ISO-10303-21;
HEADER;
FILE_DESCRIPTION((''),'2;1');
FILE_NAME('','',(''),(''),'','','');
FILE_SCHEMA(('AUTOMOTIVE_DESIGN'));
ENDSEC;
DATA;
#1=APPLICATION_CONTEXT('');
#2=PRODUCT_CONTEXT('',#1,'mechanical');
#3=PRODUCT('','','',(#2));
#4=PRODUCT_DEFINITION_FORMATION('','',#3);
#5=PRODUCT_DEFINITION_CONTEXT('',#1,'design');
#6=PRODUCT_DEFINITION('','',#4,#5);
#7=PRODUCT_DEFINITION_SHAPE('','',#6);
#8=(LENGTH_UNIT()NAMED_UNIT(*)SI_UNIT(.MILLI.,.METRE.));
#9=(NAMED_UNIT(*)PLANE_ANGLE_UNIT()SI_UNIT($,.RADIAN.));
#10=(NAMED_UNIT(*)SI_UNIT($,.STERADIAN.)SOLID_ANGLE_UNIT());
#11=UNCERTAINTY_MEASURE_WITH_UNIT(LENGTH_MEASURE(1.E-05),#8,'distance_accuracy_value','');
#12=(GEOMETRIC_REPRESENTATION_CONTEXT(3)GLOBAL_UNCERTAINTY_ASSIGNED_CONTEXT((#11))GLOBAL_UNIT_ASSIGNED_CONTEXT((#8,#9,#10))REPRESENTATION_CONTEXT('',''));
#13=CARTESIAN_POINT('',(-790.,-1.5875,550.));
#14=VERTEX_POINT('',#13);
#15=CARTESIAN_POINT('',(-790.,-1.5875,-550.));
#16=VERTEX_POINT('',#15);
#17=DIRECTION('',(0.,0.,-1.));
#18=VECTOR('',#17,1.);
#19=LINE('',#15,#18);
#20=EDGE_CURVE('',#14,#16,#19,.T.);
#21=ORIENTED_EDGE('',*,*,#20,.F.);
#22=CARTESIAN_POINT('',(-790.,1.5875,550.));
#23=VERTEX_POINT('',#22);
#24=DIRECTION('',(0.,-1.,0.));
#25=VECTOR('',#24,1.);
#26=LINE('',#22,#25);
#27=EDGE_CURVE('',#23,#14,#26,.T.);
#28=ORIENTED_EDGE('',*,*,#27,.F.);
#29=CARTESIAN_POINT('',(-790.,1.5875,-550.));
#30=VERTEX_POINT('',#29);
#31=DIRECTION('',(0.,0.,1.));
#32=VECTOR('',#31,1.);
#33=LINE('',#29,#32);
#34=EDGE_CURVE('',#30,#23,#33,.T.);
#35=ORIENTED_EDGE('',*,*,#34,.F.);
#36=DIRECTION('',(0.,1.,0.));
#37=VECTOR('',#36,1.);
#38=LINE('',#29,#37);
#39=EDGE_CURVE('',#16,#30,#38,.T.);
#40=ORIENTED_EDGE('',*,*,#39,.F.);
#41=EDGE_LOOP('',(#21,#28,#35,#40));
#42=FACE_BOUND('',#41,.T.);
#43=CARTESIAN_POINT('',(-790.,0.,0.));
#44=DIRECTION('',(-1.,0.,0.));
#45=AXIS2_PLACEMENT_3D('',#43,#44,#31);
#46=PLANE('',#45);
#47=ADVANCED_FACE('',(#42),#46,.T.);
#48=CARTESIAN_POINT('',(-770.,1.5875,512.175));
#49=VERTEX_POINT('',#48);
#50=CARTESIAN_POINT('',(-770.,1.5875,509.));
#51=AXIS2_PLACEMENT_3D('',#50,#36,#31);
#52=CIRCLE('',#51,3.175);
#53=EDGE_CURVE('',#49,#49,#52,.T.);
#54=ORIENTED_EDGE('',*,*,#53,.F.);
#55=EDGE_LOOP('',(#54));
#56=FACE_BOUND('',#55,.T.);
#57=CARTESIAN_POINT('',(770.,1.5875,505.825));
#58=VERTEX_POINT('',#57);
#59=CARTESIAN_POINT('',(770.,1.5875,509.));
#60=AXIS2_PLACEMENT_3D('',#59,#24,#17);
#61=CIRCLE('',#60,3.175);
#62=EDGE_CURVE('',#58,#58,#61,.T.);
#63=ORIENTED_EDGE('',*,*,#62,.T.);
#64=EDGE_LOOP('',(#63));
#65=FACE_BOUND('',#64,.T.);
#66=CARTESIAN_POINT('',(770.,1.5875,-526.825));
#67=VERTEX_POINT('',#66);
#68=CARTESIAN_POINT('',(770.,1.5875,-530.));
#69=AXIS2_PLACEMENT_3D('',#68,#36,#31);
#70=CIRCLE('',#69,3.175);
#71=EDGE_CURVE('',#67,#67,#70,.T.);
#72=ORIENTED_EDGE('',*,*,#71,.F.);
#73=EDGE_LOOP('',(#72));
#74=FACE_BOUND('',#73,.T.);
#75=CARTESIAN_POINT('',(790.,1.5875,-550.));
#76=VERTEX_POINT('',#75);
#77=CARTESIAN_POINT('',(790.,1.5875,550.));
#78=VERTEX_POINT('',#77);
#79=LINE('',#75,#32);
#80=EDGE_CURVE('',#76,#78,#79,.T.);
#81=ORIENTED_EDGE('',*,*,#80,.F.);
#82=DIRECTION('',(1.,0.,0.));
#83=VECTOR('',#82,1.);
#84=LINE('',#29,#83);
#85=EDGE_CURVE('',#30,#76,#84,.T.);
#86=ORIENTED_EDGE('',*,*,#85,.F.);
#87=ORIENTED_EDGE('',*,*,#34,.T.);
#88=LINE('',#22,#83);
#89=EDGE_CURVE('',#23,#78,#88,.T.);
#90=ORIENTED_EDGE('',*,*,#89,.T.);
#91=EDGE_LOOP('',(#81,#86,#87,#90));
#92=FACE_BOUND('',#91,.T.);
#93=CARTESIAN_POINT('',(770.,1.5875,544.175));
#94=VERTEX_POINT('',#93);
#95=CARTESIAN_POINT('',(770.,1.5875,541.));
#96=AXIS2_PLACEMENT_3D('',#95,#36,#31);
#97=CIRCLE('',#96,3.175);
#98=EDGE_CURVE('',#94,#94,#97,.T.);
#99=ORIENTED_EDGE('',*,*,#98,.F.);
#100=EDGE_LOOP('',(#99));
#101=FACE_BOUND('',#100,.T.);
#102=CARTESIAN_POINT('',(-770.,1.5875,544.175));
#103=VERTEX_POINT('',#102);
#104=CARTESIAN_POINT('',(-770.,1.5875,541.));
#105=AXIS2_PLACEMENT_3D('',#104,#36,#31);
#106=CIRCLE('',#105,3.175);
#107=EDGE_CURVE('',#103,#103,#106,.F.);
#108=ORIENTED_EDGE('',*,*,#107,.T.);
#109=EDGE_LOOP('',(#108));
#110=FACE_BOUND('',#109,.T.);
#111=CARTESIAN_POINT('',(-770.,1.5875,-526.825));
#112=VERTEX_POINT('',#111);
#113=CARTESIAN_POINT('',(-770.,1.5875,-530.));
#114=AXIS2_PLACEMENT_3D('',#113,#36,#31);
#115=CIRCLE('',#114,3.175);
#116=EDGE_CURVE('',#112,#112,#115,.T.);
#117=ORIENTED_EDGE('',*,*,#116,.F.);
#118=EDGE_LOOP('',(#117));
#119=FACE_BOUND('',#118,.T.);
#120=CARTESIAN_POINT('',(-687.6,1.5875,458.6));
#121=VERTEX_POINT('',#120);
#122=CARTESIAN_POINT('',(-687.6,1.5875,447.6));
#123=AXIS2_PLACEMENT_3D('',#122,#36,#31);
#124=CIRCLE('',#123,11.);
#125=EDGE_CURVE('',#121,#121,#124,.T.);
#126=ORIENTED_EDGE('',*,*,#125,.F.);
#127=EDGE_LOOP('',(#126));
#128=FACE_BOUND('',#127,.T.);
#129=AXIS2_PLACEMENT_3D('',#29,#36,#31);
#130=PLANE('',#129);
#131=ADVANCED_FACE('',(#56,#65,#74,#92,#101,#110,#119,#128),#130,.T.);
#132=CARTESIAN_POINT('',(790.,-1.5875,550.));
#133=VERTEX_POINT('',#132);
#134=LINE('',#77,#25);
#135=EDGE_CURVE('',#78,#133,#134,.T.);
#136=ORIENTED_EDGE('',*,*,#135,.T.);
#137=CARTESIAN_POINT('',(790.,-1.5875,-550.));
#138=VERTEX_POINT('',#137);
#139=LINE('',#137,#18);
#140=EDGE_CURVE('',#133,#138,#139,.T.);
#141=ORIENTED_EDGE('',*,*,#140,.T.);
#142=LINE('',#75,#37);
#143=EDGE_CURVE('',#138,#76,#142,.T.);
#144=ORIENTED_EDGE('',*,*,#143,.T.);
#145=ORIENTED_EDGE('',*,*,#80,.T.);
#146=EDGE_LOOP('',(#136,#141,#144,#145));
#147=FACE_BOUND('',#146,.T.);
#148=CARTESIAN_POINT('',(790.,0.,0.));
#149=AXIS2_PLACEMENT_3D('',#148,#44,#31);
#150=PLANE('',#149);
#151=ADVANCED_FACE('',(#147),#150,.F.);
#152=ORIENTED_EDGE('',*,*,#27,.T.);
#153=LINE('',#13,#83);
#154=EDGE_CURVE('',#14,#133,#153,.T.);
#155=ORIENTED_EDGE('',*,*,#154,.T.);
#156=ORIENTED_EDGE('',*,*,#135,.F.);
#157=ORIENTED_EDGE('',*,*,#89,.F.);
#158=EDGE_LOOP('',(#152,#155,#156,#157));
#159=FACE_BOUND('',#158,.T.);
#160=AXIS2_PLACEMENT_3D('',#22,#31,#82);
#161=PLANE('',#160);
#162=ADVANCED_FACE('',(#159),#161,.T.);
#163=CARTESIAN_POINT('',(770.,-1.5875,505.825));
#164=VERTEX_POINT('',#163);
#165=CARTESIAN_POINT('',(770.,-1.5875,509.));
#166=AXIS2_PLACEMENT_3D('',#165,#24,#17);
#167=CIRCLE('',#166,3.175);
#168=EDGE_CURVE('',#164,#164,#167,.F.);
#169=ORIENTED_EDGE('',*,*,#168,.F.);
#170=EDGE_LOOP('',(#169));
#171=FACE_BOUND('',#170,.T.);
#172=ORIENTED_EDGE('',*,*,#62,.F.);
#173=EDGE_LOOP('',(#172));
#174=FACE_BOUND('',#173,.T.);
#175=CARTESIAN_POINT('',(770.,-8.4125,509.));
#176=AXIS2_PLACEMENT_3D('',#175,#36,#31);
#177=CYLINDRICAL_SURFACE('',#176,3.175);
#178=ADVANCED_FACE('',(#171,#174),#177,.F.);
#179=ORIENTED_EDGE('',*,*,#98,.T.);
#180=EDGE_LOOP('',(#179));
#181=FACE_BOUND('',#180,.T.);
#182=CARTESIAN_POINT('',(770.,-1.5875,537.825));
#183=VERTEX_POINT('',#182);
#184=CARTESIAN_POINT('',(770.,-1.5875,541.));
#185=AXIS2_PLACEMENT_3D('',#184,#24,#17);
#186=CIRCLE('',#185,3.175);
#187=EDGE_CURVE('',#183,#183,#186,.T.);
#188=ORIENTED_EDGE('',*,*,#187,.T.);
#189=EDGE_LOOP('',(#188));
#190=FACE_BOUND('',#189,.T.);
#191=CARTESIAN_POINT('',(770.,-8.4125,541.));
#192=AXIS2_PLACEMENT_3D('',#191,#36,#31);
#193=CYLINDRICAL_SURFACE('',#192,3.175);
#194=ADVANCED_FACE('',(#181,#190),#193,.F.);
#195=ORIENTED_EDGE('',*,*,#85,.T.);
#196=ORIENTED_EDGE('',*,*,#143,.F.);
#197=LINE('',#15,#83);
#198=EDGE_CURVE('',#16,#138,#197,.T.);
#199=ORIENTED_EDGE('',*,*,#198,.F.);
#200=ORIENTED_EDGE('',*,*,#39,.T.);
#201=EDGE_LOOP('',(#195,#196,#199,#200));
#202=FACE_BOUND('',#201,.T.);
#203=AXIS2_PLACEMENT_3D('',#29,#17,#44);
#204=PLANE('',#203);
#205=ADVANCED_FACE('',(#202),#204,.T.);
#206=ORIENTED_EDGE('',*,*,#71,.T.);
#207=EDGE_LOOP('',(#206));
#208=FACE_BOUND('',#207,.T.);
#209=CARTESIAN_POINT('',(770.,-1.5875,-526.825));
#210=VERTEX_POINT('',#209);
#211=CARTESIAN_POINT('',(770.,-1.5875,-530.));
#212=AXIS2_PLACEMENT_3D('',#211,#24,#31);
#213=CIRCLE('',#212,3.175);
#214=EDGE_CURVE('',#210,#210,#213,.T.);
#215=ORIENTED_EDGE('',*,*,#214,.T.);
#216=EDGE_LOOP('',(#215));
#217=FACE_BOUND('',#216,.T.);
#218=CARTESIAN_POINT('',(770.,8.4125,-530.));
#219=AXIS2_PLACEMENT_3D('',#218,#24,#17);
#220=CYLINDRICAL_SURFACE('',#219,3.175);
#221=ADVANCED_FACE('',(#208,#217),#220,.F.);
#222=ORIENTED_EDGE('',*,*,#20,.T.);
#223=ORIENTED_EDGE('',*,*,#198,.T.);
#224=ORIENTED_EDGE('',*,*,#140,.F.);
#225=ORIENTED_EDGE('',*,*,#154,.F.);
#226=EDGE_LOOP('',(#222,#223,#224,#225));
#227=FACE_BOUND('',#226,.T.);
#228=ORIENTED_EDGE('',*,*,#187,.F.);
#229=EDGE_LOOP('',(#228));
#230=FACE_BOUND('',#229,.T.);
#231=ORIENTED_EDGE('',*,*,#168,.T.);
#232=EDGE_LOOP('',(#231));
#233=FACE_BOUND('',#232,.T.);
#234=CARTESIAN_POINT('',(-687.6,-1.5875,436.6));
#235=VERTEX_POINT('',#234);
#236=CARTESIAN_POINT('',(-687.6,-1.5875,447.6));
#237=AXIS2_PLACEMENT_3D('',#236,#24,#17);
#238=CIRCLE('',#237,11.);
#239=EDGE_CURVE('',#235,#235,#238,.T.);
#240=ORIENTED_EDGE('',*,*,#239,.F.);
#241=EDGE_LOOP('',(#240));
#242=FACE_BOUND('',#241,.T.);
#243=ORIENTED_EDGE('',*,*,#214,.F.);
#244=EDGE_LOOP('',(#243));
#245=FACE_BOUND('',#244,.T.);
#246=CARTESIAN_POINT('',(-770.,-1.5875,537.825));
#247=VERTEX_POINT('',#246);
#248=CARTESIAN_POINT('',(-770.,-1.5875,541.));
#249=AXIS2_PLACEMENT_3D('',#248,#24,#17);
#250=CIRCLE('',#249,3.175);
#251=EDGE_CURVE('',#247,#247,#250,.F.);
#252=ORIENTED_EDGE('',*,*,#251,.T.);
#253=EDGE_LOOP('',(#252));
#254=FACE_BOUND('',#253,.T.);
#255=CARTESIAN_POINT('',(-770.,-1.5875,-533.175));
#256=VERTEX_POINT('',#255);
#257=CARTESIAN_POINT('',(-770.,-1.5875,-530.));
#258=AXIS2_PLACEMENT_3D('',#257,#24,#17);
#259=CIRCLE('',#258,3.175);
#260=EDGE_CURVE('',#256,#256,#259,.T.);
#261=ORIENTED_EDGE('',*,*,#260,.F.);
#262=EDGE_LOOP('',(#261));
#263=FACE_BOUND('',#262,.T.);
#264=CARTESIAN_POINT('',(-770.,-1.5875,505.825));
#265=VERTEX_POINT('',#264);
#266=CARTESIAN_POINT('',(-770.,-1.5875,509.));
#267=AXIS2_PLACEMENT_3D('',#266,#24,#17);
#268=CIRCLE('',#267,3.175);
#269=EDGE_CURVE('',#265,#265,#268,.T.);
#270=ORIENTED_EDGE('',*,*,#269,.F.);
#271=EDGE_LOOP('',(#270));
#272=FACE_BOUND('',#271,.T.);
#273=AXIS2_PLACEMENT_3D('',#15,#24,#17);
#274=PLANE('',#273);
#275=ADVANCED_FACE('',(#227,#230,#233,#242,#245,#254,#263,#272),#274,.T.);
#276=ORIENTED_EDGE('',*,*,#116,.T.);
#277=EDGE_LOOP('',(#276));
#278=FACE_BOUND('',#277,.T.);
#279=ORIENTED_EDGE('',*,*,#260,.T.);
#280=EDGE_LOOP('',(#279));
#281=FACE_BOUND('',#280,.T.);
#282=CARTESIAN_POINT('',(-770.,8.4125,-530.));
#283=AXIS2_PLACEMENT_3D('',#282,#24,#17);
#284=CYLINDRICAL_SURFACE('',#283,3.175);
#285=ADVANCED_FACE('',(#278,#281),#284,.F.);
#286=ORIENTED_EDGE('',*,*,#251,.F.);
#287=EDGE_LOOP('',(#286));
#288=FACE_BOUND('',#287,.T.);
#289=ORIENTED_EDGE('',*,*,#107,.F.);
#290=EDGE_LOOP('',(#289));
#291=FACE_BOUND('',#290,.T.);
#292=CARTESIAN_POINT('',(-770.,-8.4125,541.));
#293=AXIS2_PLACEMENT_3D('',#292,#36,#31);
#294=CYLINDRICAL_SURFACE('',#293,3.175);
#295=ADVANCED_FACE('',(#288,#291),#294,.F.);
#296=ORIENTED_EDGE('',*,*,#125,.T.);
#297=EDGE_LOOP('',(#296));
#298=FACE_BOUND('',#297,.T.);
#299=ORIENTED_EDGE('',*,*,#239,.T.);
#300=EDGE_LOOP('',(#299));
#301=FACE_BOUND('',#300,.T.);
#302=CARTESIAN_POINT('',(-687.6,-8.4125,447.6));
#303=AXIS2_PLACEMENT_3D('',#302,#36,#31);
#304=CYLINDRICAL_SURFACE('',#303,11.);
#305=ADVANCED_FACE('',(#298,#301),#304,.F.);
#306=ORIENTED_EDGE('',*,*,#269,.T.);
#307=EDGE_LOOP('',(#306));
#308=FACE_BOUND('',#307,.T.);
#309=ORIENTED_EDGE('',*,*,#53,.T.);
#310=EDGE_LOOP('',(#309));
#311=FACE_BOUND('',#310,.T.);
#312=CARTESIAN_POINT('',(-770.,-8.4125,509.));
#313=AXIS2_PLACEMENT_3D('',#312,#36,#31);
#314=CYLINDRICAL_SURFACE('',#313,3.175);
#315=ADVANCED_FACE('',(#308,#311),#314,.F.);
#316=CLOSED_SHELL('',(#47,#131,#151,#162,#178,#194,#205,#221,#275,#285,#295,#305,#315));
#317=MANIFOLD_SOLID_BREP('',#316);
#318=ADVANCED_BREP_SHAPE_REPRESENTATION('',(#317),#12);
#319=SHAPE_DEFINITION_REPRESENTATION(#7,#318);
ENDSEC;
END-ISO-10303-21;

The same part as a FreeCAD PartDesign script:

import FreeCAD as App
import Part
import Sketcher
from FreeCAD import Vector
Q = App.Units.Quantity


def add_polygon(sketch, points):
    """Adds a closed chain of lines whose ends are joined by coincident constraints."""
    first, n = sketch.GeometryCount, len(points)
    for a, b in zip(points, points[1:] + points[:1]):
        sketch.addGeometry(Part.LineSegment(App.Vector(*a, 0), App.Vector(*b, 0)), False)
    for i in range(n):
        sketch.addConstraint(Sketcher.Constraint("Coincident", first + i, 2, first + (i + 1) % n, 1))

doc = App.newDocument("Part")
body = doc.addObject("PartDesign::Body", "Body")

sketch1 = body.newObject("Sketcher::SketchObject", "Sketch")
sketch1.AttachmentSupport = (doc.getObject("YZ_Plane"), [""])
sketch1.MapMode = "FlatFace"
add_polygon(sketch1, [(1.6, 550), (-1.6, 550), (-1.6, -550), (1.6, -550)])
sketch1.addConstraint([
    Sketcher.Constraint("Horizontal", 0),
    Sketcher.Constraint("Vertical", 1),
    Sketcher.Constraint("Horizontal", 2),
    Sketcher.Constraint("Vertical", 3),
    Sketcher.Constraint("Symmetric", 0, 2, 2, 2, -1, 1),
    Sketcher.Constraint("DistanceY", 1, 2, 1, 1, Q("1100 mm")),
    Sketcher.Constraint("DistanceX", 0, 2, 0, 1, Q("3.175 mm")),
])
pad1 = body.newObject("PartDesign::Pad", "Pad")
pad1.Profile = sketch1
pad1.Type = "TwoLengths"
pad1.Length = 790
pad1.Length2 = 790

sketch2 = body.newObject("Sketcher::SketchObject", "Sketch001")
sketch2.AttachmentSupport = (doc.getObject("XZ_Plane"), [""])
sketch2.MapMode = "FlatFace"
sketch2.AttachmentOffset = App.Placement(Vector(0, 0, -1.5875), App.Rotation())
sketch2.addGeometry(Part.Circle(Vector(-688, 448, 0), Vector(0, 0, 1), 11), False)
sketch2.addConstraint([
    Sketcher.Constraint("Diameter", 0, Q("22 mm")),
    Sketcher.Constraint("DistanceX", 0, 3, -1, 1, Q("687.6 mm")),
    Sketcher.Constraint("DistanceY", -1, 1, 0, 3, Q("447.6 mm")),
])
pocket1 = body.newObject("PartDesign::Pocket", "Pocket")
pocket1.Profile = sketch2
pocket1.Length = 10
pocket1.Reversed = True

sketch3 = body.newObject("Sketcher::SketchObject", "Sketch002")
sketch3.AttachmentSupport = (doc.getObject("XZ_Plane"), [""])
sketch3.MapMode = "FlatFace"
sketch3.AttachmentOffset = App.Placement(Vector(0, 0, 1.5875), App.Rotation())
sketch3.addGeometry([
    Part.Circle(Vector(-770, -530, 0), Vector(0, 0, 1), 3.2),
    Part.Circle(Vector(770, -530, 0), Vector(0, 0, 1), 3.2),
], False)
sketch3.addConstraint([
    Sketcher.Constraint("Equal", 0, 1),
    Sketcher.Constraint("Symmetric", 0, 3, 1, 3, -2),
    Sketcher.Constraint("Diameter", 0, Q("6.35 mm")),
    Sketcher.Constraint("DistanceX", 0, 3, -1, 1, Q("770 mm")),
    Sketcher.Constraint("DistanceY", 0, 3, -1, 1, Q("530 mm")),
])
pocket2 = body.newObject("PartDesign::Pocket", "Pocket001")
pocket2.Profile = sketch3
pocket2.Length = 10

sketch4 = body.newObject("Sketcher::SketchObject", "Sketch003")
sketch4.AttachmentSupport = (doc.getObject("XZ_Plane"), [""])
sketch4.MapMode = "FlatFace"
sketch4.AttachmentOffset = App.Placement(Vector(0, 0, -1.5875), App.Rotation())
sketch4.addGeometry([
    Part.Circle(Vector(-770, 509, 0), Vector(0, 0, 1), 3.2),
    Part.Circle(Vector(-770, 541, 0), Vector(0, 0, 1), 3.2),
    Part.Circle(Vector(770, 541, 0), Vector(0, 0, 1), 3.2),
    Part.Circle(Vector(770, 509, 0), Vector(0, 0, 1), 3.2),
], False)
sketch4.addConstraint([
    Sketcher.Constraint("Equal", 0, 1),
    Sketcher.Constraint("Equal", 1, 2),
    Sketcher.Constraint("Equal", 2, 3),
    Sketcher.Constraint("Symmetric", 1, 3, 2, 3, -2),
    Sketcher.Constraint("Symmetric", 0, 3, 3, 3, -2),
    Sketcher.Constraint("Vertical", 0, 3, 1, 3),
    Sketcher.Constraint("Diameter", 0, Q("6.35 mm")),
    Sketcher.Constraint("DistanceX", 0, 3, -1, 1, Q("770 mm")),
    Sketcher.Constraint("DistanceY", -1, 1, 0, 3, Q("509 mm")),
    Sketcher.Constraint("DistanceY", -1, 1, 1, 3, Q("541 mm")),
])
pocket3 = body.newObject("PartDesign::Pocket", "Pocket002")
pocket3.Profile = sketch4
pocket3.Length = 10
pocket3.Reversed = True

doc.recompute()
